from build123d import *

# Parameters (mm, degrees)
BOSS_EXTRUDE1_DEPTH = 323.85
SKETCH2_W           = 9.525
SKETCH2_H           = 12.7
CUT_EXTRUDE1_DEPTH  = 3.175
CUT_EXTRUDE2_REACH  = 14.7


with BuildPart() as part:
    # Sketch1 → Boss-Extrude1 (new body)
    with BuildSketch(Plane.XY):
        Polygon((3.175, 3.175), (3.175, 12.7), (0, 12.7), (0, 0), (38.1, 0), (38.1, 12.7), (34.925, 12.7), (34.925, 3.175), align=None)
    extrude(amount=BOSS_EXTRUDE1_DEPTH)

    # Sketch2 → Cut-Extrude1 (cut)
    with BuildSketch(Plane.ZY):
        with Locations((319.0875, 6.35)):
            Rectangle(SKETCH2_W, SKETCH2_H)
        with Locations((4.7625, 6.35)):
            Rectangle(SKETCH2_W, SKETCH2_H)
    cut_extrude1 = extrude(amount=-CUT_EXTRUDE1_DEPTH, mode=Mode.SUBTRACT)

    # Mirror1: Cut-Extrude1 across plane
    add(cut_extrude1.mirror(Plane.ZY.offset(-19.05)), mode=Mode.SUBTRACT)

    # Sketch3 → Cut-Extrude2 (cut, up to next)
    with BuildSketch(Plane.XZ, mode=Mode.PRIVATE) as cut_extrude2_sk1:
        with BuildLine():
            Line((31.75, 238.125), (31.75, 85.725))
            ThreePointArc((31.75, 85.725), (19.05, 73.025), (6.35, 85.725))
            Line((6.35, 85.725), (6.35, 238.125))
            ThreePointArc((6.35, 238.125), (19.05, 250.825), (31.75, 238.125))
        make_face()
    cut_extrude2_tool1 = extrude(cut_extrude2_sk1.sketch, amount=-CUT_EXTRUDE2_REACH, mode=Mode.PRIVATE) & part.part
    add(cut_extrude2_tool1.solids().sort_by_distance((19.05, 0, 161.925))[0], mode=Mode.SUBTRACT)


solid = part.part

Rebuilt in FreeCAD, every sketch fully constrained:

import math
import FreeCAD as App
import Part
import Sketcher
from FreeCAD import Vector
Q = App.Units.Quantity

doc = App.newDocument("Part")
params = doc.addObject("Spreadsheet::Sheet", "Params")
for row, (alias, value) in enumerate([
    ("sketch1_width", "1.5 in"),
    ("sketch1_height", "0.5 in"),
    ("sketch1_width2", "1.25 in"),
    ("sketch1_height2", "0.375 in"),
    ("pad1_length", "12.75 in"),
    ("sketch2_width", "0.5 in"),
    ("sketch2_height", "0.375 in"),
    ("pocket1_length", "0.125 in"),
    ("sketch3_radius", "0.5 in"),
    ("sketch3_height", "6 in"),
], start=1):
    params.set(f"A{row}", alias)
    params.set(f"B{row}", "=" + value)
    params.setAlias(f"B{row}", alias)

body = doc.addObject("PartDesign::Body", "Body")

sketch1 = body.newObject("Sketcher::SketchObject", "Sketch")
sketch1.AttachmentSupport = (doc.getObject("XY_Plane"), [""])
sketch1.MapMode = "FlatFace"
sketch1.addGeometry([
    Part.LineSegment(Vector(3.2, 3.2, 0), Vector(3.2, 12.7, 0)),
    Part.LineSegment(Vector(3.2, 12.7, 0), Vector(0, 12.7, 0)),
    Part.LineSegment(Vector(0, 12.7, 0), Vector(0, 0, 0)),
    Part.LineSegment(Vector(0, 0, 0), Vector(38.1, 0, 0)),
    Part.LineSegment(Vector(38.1, 0, 0), Vector(38.1, 12.7, 0)),
    Part.LineSegment(Vector(38.1, 12.7, 0), Vector(34.9, 12.7, 0)),
    Part.LineSegment(Vector(34.9, 12.7, 0), Vector(34.9, 3.2, 0)),
    Part.LineSegment(Vector(34.9, 3.2, 0), Vector(3.2, 3.2, 0)),
], False)
sketch1.addConstraint([
    Sketcher.Constraint("Coincident", 0, 2, 1, 1),
    Sketcher.Constraint("Coincident", 1, 2, 2, 1),
    Sketcher.Constraint("Coincident", 2, 2, 3, 1),
    Sketcher.Constraint("Coincident", 3, 2, 4, 1),
    Sketcher.Constraint("Coincident", 4, 2, 5, 1),
    Sketcher.Constraint("Coincident", 5, 2, 6, 1),
    Sketcher.Constraint("Coincident", 6, 2, 7, 1),
    Sketcher.Constraint("Coincident", 7, 2, 0, 1),
    Sketcher.Constraint("Vertical", 0),
    Sketcher.Constraint("Horizontal", 1),
    Sketcher.Constraint("Vertical", 2),
    Sketcher.Constraint("Horizontal", 3),
    Sketcher.Constraint("Vertical", 4),
    Sketcher.Constraint("Horizontal", 5),
    Sketcher.Constraint("Vertical", 6),
    Sketcher.Constraint("Horizontal", 7),
    Sketcher.Constraint("Coincident", 2, 2, -1, 1),
    Sketcher.Constraint("Horizontal", 1, 2, 4, 2),
    Sketcher.Constraint("Equal", 1, 5),
    Sketcher.Constraint("DistanceX", 3, 1, 3, 2, Q("1.5 in")),
    Sketcher.Constraint("DistanceY", 2, 2, 2, 1, Q("0.5 in")),
    Sketcher.Constraint("DistanceX", 7, 2, 7, 1, Q("1.25 in")),
    Sketcher.Constraint("DistanceY", 0, 1, 0, 2, Q("0.375 in")),
])
sketch1.setExpression("Constraints[19]", "Params.sketch1_width")
sketch1.setExpression("Constraints[20]", "Params.sketch1_height")
sketch1.setExpression("Constraints[21]", "Params.sketch1_width2")
sketch1.setExpression("Constraints[22]", "Params.sketch1_height2")
pad1 = body.newObject("PartDesign::Pad", "Pad")
pad1.Profile = sketch1
pad1.setExpression("Length", "Params.pad1_length")

sketch2 = body.newObject("Sketcher::SketchObject", "Sketch001")
sketch2.AttachmentSupport = (doc.getObject("YZ_Plane"), [""])
sketch2.MapMode = "FlatFace"
sketch2.addGeometry([
    Part.LineSegment(Vector(13, 314, 0), Vector(0, 314, 0)),
    Part.LineSegment(Vector(0, 314, 0), Vector(0, 324, 0)),
    Part.LineSegment(Vector(0, 324, 0), Vector(13, 324, 0)),
    Part.LineSegment(Vector(13, 324, 0), Vector(13, 314, 0)),
    Part.LineSegment(Vector(13, 0, 0), Vector(0, 0, 0)),
    Part.LineSegment(Vector(0, 0, 0), Vector(0, 10, 0)),
    Part.LineSegment(Vector(0, 10, 0), Vector(13, 10, 0)),
    Part.LineSegment(Vector(13, 10, 0), Vector(13, 0, 0)),
], False)
sketch2.addConstraint([
    Sketcher.Constraint("Coincident", 0, 2, 1, 1),
    Sketcher.Constraint("Coincident", 1, 2, 2, 1),
    Sketcher.Constraint("Coincident", 2, 2, 3, 1),
    Sketcher.Constraint("Coincident", 3, 2, 0, 1),
    Sketcher.Constraint("Coincident", 4, 2, 5, 1),
    Sketcher.Constraint("Coincident", 5, 2, 6, 1),
    Sketcher.Constraint("Coincident", 6, 2, 7, 1),
    Sketcher.Constraint("Coincident", 7, 2, 4, 1),
    Sketcher.Constraint("Horizontal", 0),
    Sketcher.Constraint("Vertical", 1),
    Sketcher.Constraint("Horizontal", 2),
    Sketcher.Constraint("Vertical", 3),
    Sketcher.Constraint("Horizontal", 4),
    Sketcher.Constraint("Vertical", 5),
    Sketcher.Constraint("Horizontal", 6),
    Sketcher.Constraint("Vertical", 7),
    Sketcher.Constraint("Coincident", 4, 2, -1, 1),
    Sketcher.Constraint("PointOnObject", 0, 2, -2),
    Sketcher.Constraint("Vertical", 3, 2, 6, 2),
    Sketcher.Constraint("Equal", 3, 5),
    Sketcher.Constraint("DistanceX", 0, 2, 0, 1, Q("0.5 in")),
    Sketcher.Constraint("DistanceY", 5, 2, 0, 2, Q("12 in")),
    Sketcher.Constraint("DistanceY", 1, 1, 1, 2, Q("0.375 in")),
])
sketch2.setExpression("Constraints[20]", "Params.sketch2_width")
sketch2.setExpression("Constraints[22]", "Params.sketch2_height")
pocket1 = body.newObject("PartDesign::Pocket", "Pocket")
pocket1.Profile = sketch2
pocket1.setExpression("Length", "Params.pocket1_length")
pocket1.Reversed = True
doc.recompute()

datumplane = body.newObject("PartDesign::Plane", "DatumPlane")
datumplane.AttachmentSupport = (doc.getObject("YZ_Plane"), [""])
datumplane.MapMode = "FlatFace"
datumplane.AttachmentOffset = App.Placement(Vector(0, 0, 0.75 * 25.4), App.Rotation())
mirrored = body.newObject("PartDesign::Mirrored", "Mirrored")
mirrored.Originals = [pocket1]
mirrored.MirrorPlane = (datumplane, [""])
body.Tip = mirrored

sketch3 = body.newObject("Sketcher::SketchObject", "Sketch002")
sketch3.AttachmentSupport = (doc.getObject("XZ_Plane"), [""])
sketch3.MapMode = "FlatFace"
sketch3.addGeometry([
    Part.LineSegment(Vector(32, 86, 0), Vector(32, 238, 0)),
    Part.ArcOfCircle(Part.Circle(Vector(19, 238, 0), Vector(0, 0, 1), 13), math.radians(0), math.radians(180)),
    Part.LineSegment(Vector(6, 238, 0), Vector(6, 86, 0)),
    Part.ArcOfCircle(Part.Circle(Vector(19, 86, 0), Vector(0, 0, 1), 13), math.radians(180), math.radians(360)),
], False)
sketch3.addConstraint([
    Sketcher.Constraint("Tangent", 0, 2, 1, 1),
    Sketcher.Constraint("Tangent", 1, 2, 2, 1),
    Sketcher.Constraint("Tangent", 2, 2, 3, 1),
    Sketcher.Constraint("Tangent", 3, 2, 0, 1),
    Sketcher.Constraint("Vertical", 0),
    Sketcher.Constraint("Vertical", 2),
    Sketcher.Constraint("Radius", 1, Q("0.5 in")),
    Sketcher.Constraint("DistanceY", 0, 1, 0, 2, Q("6 in")),
    Sketcher.Constraint("DistanceX", -1, 1, 1, 3, Q("0.75 in")),
    Sketcher.Constraint("DistanceY", -1, 1, 1, 3, Q("9.375 in")),
])
sketch3.setExpression("Constraints[6]", "Params.sketch3_radius")
sketch3.setExpression("Constraints[7]", "Params.sketch3_height")
pocket2 = body.newObject("PartDesign::Pocket", "Pocket001")
pocket2.Profile = sketch3
pocket2.Type = "UpToFirst"

doc.recompute()
